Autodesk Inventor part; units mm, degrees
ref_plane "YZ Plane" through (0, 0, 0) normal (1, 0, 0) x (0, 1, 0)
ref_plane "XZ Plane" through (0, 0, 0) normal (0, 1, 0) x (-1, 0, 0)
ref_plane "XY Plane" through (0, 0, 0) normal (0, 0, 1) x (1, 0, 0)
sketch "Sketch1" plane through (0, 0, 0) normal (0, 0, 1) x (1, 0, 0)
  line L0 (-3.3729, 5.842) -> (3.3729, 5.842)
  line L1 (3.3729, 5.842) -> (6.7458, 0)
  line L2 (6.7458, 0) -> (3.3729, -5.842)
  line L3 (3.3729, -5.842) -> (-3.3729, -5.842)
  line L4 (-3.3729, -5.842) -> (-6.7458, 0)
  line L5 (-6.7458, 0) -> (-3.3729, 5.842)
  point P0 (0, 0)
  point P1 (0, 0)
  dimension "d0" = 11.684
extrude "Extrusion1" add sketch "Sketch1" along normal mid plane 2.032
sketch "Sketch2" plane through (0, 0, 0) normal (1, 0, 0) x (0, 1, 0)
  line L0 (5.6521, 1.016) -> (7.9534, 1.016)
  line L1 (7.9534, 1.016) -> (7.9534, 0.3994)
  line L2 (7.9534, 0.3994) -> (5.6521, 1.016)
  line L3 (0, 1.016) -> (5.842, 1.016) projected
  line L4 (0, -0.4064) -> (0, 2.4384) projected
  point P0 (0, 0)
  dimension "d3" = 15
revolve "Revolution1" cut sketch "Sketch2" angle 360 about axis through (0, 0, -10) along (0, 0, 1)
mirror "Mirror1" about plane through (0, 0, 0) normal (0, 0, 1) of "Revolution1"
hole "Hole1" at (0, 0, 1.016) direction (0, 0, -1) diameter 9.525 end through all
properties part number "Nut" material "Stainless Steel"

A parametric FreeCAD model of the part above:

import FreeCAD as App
import Part
import Sketcher
from FreeCAD import Vector
Q = App.Units.Quantity

doc = App.newDocument("Part")
params = doc.addObject("Spreadsheet::Sheet", "Params")
for row, (alias, value) in enumerate([
    ("pad1_length", "0.08 in"),
    ("groove_angle", "360 deg"),
    ("sketch3_diameter", "0.375 in"),
    ("hole_diameter", "0.375 in"),
], start=1):
    params.set(f"A{row}", alias)
    params.set(f"B{row}", "=" + value)
    params.setAlias(f"B{row}", alias)

body = doc.addObject("PartDesign::Body", "Body")

# Sketch on XY plane
sketch1 = body.newObject("Sketcher::SketchObject", "Sketch")
sketch1.AttachmentSupport = (doc.getObject("XY_Plane"), [""])
sketch1.MapMode = "FlatFace"
sketch1.addGeometry(Part.LineSegment(Vector(3, 6, 0), Vector(-3, 6, 0)), False)
sketch1.addGeometry(Part.LineSegment(Vector(-3, 6, 0), Vector(-7, 0, 0)), False)
sketch1.addGeometry(Part.LineSegment(Vector(-7, 0, 0), Vector(-3, -6, 0)), False)
sketch1.addGeometry(Part.LineSegment(Vector(-3, -6, 0), Vector(3, -6, 0)), False)
sketch1.addGeometry(Part.LineSegment(Vector(3, -6, 0), Vector(7, 0, 0)), False)
sketch1.addGeometry(Part.LineSegment(Vector(7, 0, 0), Vector(3, 6, 0)), False)
sketch1.addConstraint(Sketcher.Constraint("Coincident", 0, 2, 1, 1))
sketch1.addConstraint(Sketcher.Constraint("Coincident", 1, 2, 2, 1))
sketch1.addConstraint(Sketcher.Constraint("Coincident", 2, 2, 3, 1))
sketch1.addConstraint(Sketcher.Constraint("Coincident", 3, 2, 4, 1))
sketch1.addConstraint(Sketcher.Constraint("Coincident", 4, 2, 5, 1))
sketch1.addConstraint(Sketcher.Constraint("Coincident", 5, 2, 0, 1))
sketch1.addConstraint(Sketcher.Constraint("Horizontal", 0))
sketch1.addConstraint(Sketcher.Constraint("Horizontal", 3))
sketch1.addConstraint(Sketcher.Constraint("Symmetric", 0, 2, 3, 2, -1, 1))
sketch1.addConstraint(Sketcher.Constraint("Symmetric", 1, 2, 4, 2, -1, 1))
sketch1.addConstraint(Sketcher.Constraint("PointOnObject", 1, 2, -1))
sketch1.addConstraint(Sketcher.Constraint("Parallel", 2, 5))
sketch1.addConstraint(Sketcher.Constraint("Vertical", 0, 2, 2, 2))
sketch1.addConstraint(Sketcher.Constraint("DistanceY", 2, 2, 0, 2, Q("0.46 in")))
sketch1.addConstraint(Sketcher.Constraint("Angle", 1, Q("-120.0001 deg")))
sketch1.addConstraint(Sketcher.Constraint("DistanceX", 0, 2, 0, 1, Q("6.7458 mm")))
pad1 = body.newObject("PartDesign::Pad", "Pad")
pad1.Profile = sketch1
pad1.setExpression("Length", "Params.pad1_length")
pad1.Midplane = True

# Sketch on YZ plane
sketch2 = body.newObject("Sketcher::SketchObject", "Sketch001")
sketch2.AttachmentSupport = (doc.getObject("YZ_Plane"), [""])
sketch2.MapMode = "FlatFace"
sketch2.addGeometry(Part.LineSegment(Vector(8, 1, 0), Vector(5.7, 1, 0)), False)
sketch2.addGeometry(Part.LineSegment(Vector(5.7, 1, 0), Vector(8, 0.4, 0)), False)
sketch2.addGeometry(Part.LineSegment(Vector(8, 0.4, 0), Vector(8, 1, 0)), False)
sketch2.addConstraint(Sketcher.Constraint("Coincident", 0, 2, 1, 1))
sketch2.addConstraint(Sketcher.Constraint("Coincident", 1, 2, 2, 1))
sketch2.addConstraint(Sketcher.Constraint("Coincident", 2, 2, 0, 1))
sketch2.addConstraint(Sketcher.Constraint("Horizontal", 0))
sketch2.addConstraint(Sketcher.Constraint("Vertical", 2))
sketch2.addConstraint(Sketcher.Constraint("Angle", 1, Q("-14.9993 deg")))
sketch2.addConstraint(Sketcher.Constraint("DistanceY", -1, 1, 0, 2, Q("0.04 in")))
sketch2.addConstraint(Sketcher.Constraint("DistanceX", 0, 2, 0, 1, Q("0.0906 in")))
sketch2.addConstraint(Sketcher.Constraint("DistanceX", -1, 1, 0, 2, Q("5.652 mm")))
groove = body.newObject("PartDesign::Groove", "Groove")
groove.Profile = sketch2
groove.ReferenceAxis = (sketch2, ["V_Axis"])
groove.setExpression("Angle", "Params.groove_angle")
doc.recompute()

mirrored = body.newObject("PartDesign::Mirrored", "Mirrored")
mirrored.Originals = [groove]
mirrored.MirrorPlane = (doc.getObject("XY_Plane"), [""])
body.Tip = mirrored

# Sketch on XY plane
sketch3 = body.newObject("Sketcher::SketchObject", "Sketch002")
sketch3.AttachmentSupport = (doc.getObject("XY_Plane"), [""])
sketch3.MapMode = "FlatFace"
sketch3.AttachmentOffset = App.Placement(Vector(0, 0, 0.04 * 25.4), App.Rotation())
sketch3.addGeometry(Part.Circle(Vector(0, 0, 0), Vector(0, 0, 1), 4.8), False)
sketch3.addConstraint(Sketcher.Constraint("Coincident", 0, 3, -1, 1))
sketch3.addConstraint(Sketcher.Constraint("Diameter", 0, Q("0.375 in")))
sketch3.setExpression("Constraints[1]", "Params.sketch3_diameter")
doc.recompute()
hole = body.newObject("PartDesign::Hole", "Hole")
hole.Profile = sketch3
hole.ThreadType = "None"
hole.setExpression("Diameter", "Params.hole_diameter")
hole.DepthType = "ThroughAll"

doc.recompute()
